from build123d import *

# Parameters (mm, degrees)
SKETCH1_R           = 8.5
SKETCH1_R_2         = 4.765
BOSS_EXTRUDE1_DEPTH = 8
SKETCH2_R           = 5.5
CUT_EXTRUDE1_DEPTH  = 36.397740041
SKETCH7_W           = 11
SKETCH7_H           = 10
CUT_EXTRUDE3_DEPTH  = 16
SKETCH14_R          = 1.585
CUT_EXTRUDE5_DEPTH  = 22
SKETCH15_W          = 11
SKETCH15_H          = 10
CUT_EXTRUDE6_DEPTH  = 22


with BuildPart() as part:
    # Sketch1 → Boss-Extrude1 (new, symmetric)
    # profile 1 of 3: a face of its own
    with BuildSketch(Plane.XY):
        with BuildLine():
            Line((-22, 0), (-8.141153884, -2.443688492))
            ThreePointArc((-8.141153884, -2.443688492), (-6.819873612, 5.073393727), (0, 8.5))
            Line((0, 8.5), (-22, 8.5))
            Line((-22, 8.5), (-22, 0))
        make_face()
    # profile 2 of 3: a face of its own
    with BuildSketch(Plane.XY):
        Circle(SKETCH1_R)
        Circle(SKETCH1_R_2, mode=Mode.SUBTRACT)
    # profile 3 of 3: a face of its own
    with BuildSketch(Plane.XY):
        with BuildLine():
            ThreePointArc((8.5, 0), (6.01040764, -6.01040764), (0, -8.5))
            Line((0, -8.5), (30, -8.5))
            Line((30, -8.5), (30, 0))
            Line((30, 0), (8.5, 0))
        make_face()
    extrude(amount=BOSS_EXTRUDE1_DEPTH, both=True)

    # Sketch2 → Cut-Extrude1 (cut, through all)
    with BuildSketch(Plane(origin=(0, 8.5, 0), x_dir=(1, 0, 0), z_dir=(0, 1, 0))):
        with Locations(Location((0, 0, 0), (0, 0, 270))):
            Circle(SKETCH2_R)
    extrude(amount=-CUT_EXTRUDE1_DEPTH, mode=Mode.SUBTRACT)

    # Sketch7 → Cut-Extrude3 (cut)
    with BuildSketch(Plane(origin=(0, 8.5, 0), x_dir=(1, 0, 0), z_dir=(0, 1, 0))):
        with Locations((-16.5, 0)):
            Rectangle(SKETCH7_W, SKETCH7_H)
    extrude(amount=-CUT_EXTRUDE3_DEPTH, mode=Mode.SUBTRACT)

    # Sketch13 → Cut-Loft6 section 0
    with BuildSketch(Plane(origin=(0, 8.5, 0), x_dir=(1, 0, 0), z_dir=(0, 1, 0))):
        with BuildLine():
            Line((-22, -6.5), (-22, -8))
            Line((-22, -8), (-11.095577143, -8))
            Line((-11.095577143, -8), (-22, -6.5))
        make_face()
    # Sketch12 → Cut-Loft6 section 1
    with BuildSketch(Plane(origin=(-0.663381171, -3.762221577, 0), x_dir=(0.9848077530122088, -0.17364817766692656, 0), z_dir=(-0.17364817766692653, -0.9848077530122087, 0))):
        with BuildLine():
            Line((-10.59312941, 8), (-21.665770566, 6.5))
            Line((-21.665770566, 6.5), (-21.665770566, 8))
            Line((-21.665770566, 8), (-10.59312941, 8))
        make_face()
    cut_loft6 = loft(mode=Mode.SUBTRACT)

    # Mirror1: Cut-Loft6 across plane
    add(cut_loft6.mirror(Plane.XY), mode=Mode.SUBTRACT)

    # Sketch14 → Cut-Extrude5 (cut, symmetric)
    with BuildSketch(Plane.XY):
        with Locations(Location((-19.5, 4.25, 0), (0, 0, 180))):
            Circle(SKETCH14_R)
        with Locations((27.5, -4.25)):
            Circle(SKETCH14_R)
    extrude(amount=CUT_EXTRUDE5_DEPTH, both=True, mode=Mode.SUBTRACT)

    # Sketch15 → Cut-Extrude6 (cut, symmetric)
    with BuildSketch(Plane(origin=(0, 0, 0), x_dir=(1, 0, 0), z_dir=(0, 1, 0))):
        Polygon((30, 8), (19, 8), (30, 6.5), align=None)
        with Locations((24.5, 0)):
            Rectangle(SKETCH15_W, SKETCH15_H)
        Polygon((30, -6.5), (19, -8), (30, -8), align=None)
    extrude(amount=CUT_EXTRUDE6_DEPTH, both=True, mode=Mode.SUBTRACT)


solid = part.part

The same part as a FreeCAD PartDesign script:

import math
import FreeCAD as App
import Part
import Sketcher
from FreeCAD import Vector
Q = App.Units.Quantity

doc = App.newDocument("Part")
body = doc.addObject("PartDesign::Body", "Body")

# Sketch on XY plane
sketch1 = body.newObject("Sketcher::SketchObject", "Sketch")
sketch1.AttachmentSupport = (doc.getObject("XY_Plane"), [""])
sketch1.MapMode = "FlatFace"
sketch1.addGeometry(Part.LineSegment(Vector(-22, 0, 0), Vector(-8.1, -2.4, 0)), False)
sketch1.addGeometry(Part.ArcOfCircle(Part.Circle(Vector(0, 0, 0), Vector(0, 0, 1), 8.5), math.radians(-163), math.radians(-90)), False)
sketch1.addGeometry(Part.LineSegment(Vector(0, -8.5, 0), Vector(30, -8.5, 0)), False)
sketch1.addGeometry(Part.LineSegment(Vector(30, -8.5, 0), Vector(30, 0, 0)), False)
sketch1.addGeometry(Part.LineSegment(Vector(30, 0, 0), Vector(8.5, 0, 0)), False)
sketch1.addGeometry(Part.ArcOfCircle(Part.Circle(Vector(0, 0, 0), Vector(0, 0, 1), 8.5), math.radians(0), math.radians(90)), False)
sketch1.addGeometry(Part.LineSegment(Vector(0, 8.5, 0), Vector(-22, 8.5, 0)), False)
sketch1.addGeometry(Part.LineSegment(Vector(-22, 8.5, 0), Vector(-22, 0, 0)), False)
sketch1.addGeometry(Part.Circle(Vector(0, 0, 0), Vector(0, 0, 1), 4.8), False)
sketch1.addConstraint(Sketcher.Constraint("Coincident", 0, 2, 1, 1))
sketch1.addConstraint(Sketcher.Constraint("Tangent", 1, 2, 2, 1))
sketch1.addConstraint(Sketcher.Constraint("Coincident", 2, 2, 3, 1))
sketch1.addConstraint(Sketcher.Constraint("Coincident", 3, 2, 4, 1))
sketch1.addConstraint(Sketcher.Constraint("Coincident", 4, 2, 5, 1))
sketch1.addConstraint(Sketcher.Constraint("Tangent", 5, 2, 6, 1))
sketch1.addConstraint(Sketcher.Constraint("Coincident", 6, 2, 7, 1))
sketch1.addConstraint(Sketcher.Constraint("Coincident", 7, 2, 0, 1))
sketch1.addConstraint(Sketcher.Constraint("Horizontal", 2))
sketch1.addConstraint(Sketcher.Constraint("Vertical", 3))
sketch1.addConstraint(Sketcher.Constraint("Horizontal", 4))
sketch1.addConstraint(Sketcher.Constraint("Horizontal", 6))
sketch1.addConstraint(Sketcher.Constraint("Vertical", 7))
sketch1.addConstraint(Sketcher.Constraint("Coincident", 1, 3, -1, 1))
sketch1.addConstraint(Sketcher.Constraint("Coincident", 5, 3, -1, 1))
sketch1.addConstraint(Sketcher.Constraint("Coincident", 8, 3, -1, 1))
sketch1.addConstraint(Sketcher.Constraint("Equal", 1, 5))
sketch1.addConstraint(Sketcher.Constraint("PointOnObject", 3, 2, -1))
sketch1.addConstraint(Sketcher.Constraint("PointOnObject", 7, 2, -1))
sketch1.addConstraint(Sketcher.Constraint("Radius", 1, Q("8.5 mm")))
sketch1.addConstraint(Sketcher.Constraint("Diameter", 8, Q("9.53 mm")))
sketch1.addConstraint(Sketcher.Constraint("DistanceX", 2, 1, 2, 2, Q("30 mm")))
sketch1.addConstraint(Sketcher.Constraint("DistanceX", 6, 2, 6, 1, Q("22 mm")))
sketch1.addConstraint(Sketcher.Constraint("Angle", 0, Q("-10 deg")))
pad1 = body.newObject("PartDesign::Pad", "Pad")
pad1.Profile = sketch1
pad1.Length = 16
pad1.Midplane = True

# Sketch on XZ plane
sketch2 = body.newObject("Sketcher::SketchObject", "Sketch001")
sketch2.AttachmentSupport = (doc.getObject("XZ_Plane"), [""])
sketch2.MapMode = "FlatFace"
sketch2.AttachmentOffset = App.Placement(Vector(0, 0, -8.5), App.Rotation())
sketch2.addGeometry(Part.Circle(Vector(0, 0, 0), Vector(0, 0, 1), 6), False)
sketch2.addConstraint(Sketcher.Constraint("Coincident", 0, 3, -1, 1))
sketch2.addConstraint(Sketcher.Constraint("Diameter", 0, Q("11 mm")))
pocket1 = body.newObject("PartDesign::Pocket", "Pocket")
pocket1.Profile = sketch2
pocket1.Type = "ThroughAll"
pocket1.Reversed = True

# Sketch on XZ plane
sketch3 = body.newObject("Sketcher::SketchObject", "Sketch002")
sketch3.AttachmentSupport = (doc.getObject("XZ_Plane"), [""])
sketch3.MapMode = "FlatFace"
sketch3.AttachmentOffset = App.Placement(Vector(0, 0, -8.5), App.Rotation())
sketch3.addGeometry(Part.LineSegment(Vector(-22, -5, 0), Vector(-22, 5, 0)), False)
sketch3.addGeometry(Part.LineSegment(Vector(-22, 5, 0), Vector(-11, 5, 0)), False)
sketch3.addGeometry(Part.LineSegment(Vector(-11, 5, 0), Vector(-11, -5, 0)), False)
sketch3.addGeometry(Part.LineSegment(Vector(-11, -5, 0), Vector(-22, -5, 0)), False)
sketch3.addConstraint(Sketcher.Constraint("Coincident", 0, 2, 1, 1))
sketch3.addConstraint(Sketcher.Constraint("Coincident", 1, 2, 2, 1))
sketch3.addConstraint(Sketcher.Constraint("Coincident", 2, 2, 3, 1))
sketch3.addConstraint(Sketcher.Constraint("Coincident", 3, 2, 0, 1))
sketch3.addConstraint(Sketcher.Constraint("Vertical", 0))
sketch3.addConstraint(Sketcher.Constraint("Horizontal", 1))
sketch3.addConstraint(Sketcher.Constraint("Vertical", 2))
sketch3.addConstraint(Sketcher.Constraint("Horizontal", 3))
sketch3.addConstraint(Sketcher.Constraint("DistanceX", 1, 1, 1, 2, Q("11 mm")))
sketch3.addConstraint(Sketcher.Constraint("DistanceY", 0, 1, 0, 2, Q("10 mm")))
sketch3.addConstraint(Sketcher.Constraint("DistanceX", 0, 2, -1, 1, Q("22 mm")))
sketch3.addConstraint(Sketcher.Constraint("DistanceY", -1, 1, 0, 2, Q("5 mm")))
pocket2 = body.newObject("PartDesign::Pocket", "Pocket001")
pocket2.Profile = sketch3
pocket2.Length = 16
pocket2.Reversed = True

# Sketch on XZ plane
sketch4 = body.newObject("Sketcher::SketchObject", "Sketch003")
sketch4.AttachmentSupport = (doc.getObject("XZ_Plane"), [""])
sketch4.MapMode = "FlatFace"
sketch4.AttachmentOffset = App.Placement(Vector(0, 0, -8.5), App.Rotation())
sketch4.addGeometry(Part.LineSegment(Vector(-22, 6.5, 0), Vector(-22, 8, 0)), False)
sketch4.addGeometry(Part.LineSegment(Vector(-22, 8, 0), Vector(-11.1, 8, 0)), False)
sketch4.addGeometry(Part.LineSegment(Vector(-11.1, 8, 0), Vector(-22, 6.5, 0)), False)
sketch4.addConstraint(Sketcher.Constraint("Coincident", 0, 2, 1, 1))
sketch4.addConstraint(Sketcher.Constraint("Coincident", 1, 2, 2, 1))
sketch4.addConstraint(Sketcher.Constraint("Coincident", 2, 2, 0, 1))
sketch4.addConstraint(Sketcher.Constraint("Vertical", 0))
sketch4.addConstraint(Sketcher.Constraint("Horizontal", 1))
sketch4.addConstraint(Sketcher.Constraint("DistanceY", 0, 1, 0, 2, Q("1.5 mm")))
sketch4.addConstraint(Sketcher.Constraint("DistanceX", 0, 2, -1, 1, Q("22 mm")))
sketch4.addConstraint(Sketcher.Constraint("DistanceY", -1, 1, 0, 2, Q("8 mm")))
sketch4.addConstraint(Sketcher.Constraint("Distance", 2, Q("11.007109 mm")))

# Sketch on an angled plane
sketch5 = body.newObject("Sketcher::SketchObject", "Sketch004")
sketch5.Placement = App.Placement(Vector(-0.663381, -3.762222, 0), App.Rotation(Vector(0.984807753, -0.173648178, 0), Vector(0, 0, 1), Vector(-0.173648178, -0.984807753, 0), "ZXY"))
sketch5.addGeometry(Part.LineSegment(Vector(-21.7, 6.5, 0), Vector(-10.6, 8, 0)), False)
sketch5.addGeometry(Part.LineSegment(Vector(-10.6, 8, 0), Vector(-21.7, 8, 0)), False)
sketch5.addGeometry(Part.LineSegment(Vector(-21.7, 8, 0), Vector(-21.7, 6.5, 0)), False)
sketch5.addConstraint(Sketcher.Constraint("Coincident", 0, 2, 1, 1))
sketch5.addConstraint(Sketcher.Constraint("Coincident", 1, 2, 2, 1))
sketch5.addConstraint(Sketcher.Constraint("Coincident", 2, 2, 0, 1))
sketch5.addConstraint(Sketcher.Constraint("Horizontal", 1))
sketch5.addConstraint(Sketcher.Constraint("Vertical", 2))
sketch5.addConstraint(Sketcher.Constraint("DistanceY", 2, 2, 2, 1, Q("1.5 mm")))
sketch5.addConstraint(Sketcher.Constraint("DistanceY", -1, 1, 0, 2, Q("8 mm")))
sketch5.addConstraint(Sketcher.Constraint("DistanceX", 1, 2, 1, 1, Q("11.072641 mm")))
sketch5.addConstraint(Sketcher.Constraint("DistanceX", 0, 2, -1, 1, Q("10.593129 mm")))

subtractiveloft = body.newObject("PartDesign::SubtractiveLoft", "SubtractiveLoft")
subtractiveloft.Profile = sketch4
subtractiveloft.Sections = [sketch5]
doc.recompute()

mirrored = body.newObject("PartDesign::Mirrored", "Mirrored")
mirrored.Originals = [subtractiveloft]
mirrored.MirrorPlane = (doc.getObject("XY_Plane"), [""])
body.Tip = mirrored

# Sketch on XY plane
sketch6 = body.newObject("Sketcher::SketchObject", "Sketch005")
sketch6.AttachmentSupport = (doc.getObject("XY_Plane"), [""])
sketch6.MapMode = "FlatFace"
sketch6.addGeometry(Part.Circle(Vector(-19.5, 4.2, 0), Vector(0, 0, 1), 1.6), False)
sketch6.addGeometry(Part.Circle(Vector(27.5, -4.2, 0), Vector(0, 0, 1), 1.6), False)
sketch6.addConstraint(Sketcher.Constraint("Equal", 0, 1))
sketch6.addConstraint(Sketcher.Constraint("Diameter", 0, Q("3.17 mm")))
sketch6.addConstraint(Sketcher.Constraint("DistanceX", 0, 3, 1, 3, Q("47 mm")))
sketch6.addConstraint(Sketcher.Constraint("DistanceX", 0, 3, -1, 1, Q("19.5 mm")))
sketch6.addConstraint(Sketcher.Constraint("DistanceY", 1, 3, 0, 3, Q("8.5 mm")))
sketch6.addConstraint(Sketcher.Constraint("DistanceY", -1, 1, 0, 3, Q("4.25 mm")))
pocket3 = body.newObject("PartDesign::Pocket", "Pocket002")
pocket3.Profile = sketch6
pocket3.Length = 44
pocket3.Midplane = True

# Sketch on XZ plane
sketch7 = body.newObject("Sketcher::SketchObject", "Sketch006")
sketch7.AttachmentSupport = (doc.getObject("XZ_Plane"), [""])
sketch7.MapMode = "FlatFace"
sketch7.addGeometry(Part.LineSegment(Vector(30, -8, 0), Vector(19, -8, 0)), False)
sketch7.addGeometry(Part.LineSegment(Vector(19, -8, 0), Vector(30, -6.5, 0)), False)
sketch7.addGeometry(Part.LineSegment(Vector(30, -6.5, 0), Vector(30, -8, 0)), False)
sketch7.addGeometry(Part.LineSegment(Vector(19, -5, 0), Vector(19, 5, 0)), False)
sketch7.addGeometry(Part.LineSegment(Vector(19, 5, 0), Vector(30, 5, 0)), False)
sketch7.addGeometry(Part.LineSegment(Vector(30, 5, 0), Vector(30, -5, 0)), False)
sketch7.addGeometry(Part.LineSegment(Vector(30, -5, 0), Vector(19, -5, 0)), False)
sketch7.addGeometry(Part.LineSegment(Vector(30, 6.5, 0), Vector(19, 8, 0)), False)
sketch7.addGeometry(Part.LineSegment(Vector(19, 8, 0), Vector(30, 8, 0)), False)
sketch7.addGeometry(Part.LineSegment(Vector(30, 8, 0), Vector(30, 6.5, 0)), False)
sketch7.addConstraint(Sketcher.Constraint("Coincident", 0, 2, 1, 1))
sketch7.addConstraint(Sketcher.Constraint("Coincident", 1, 2, 2, 1))
sketch7.addConstraint(Sketcher.Constraint("Coincident", 2, 2, 0, 1))
sketch7.addConstraint(Sketcher.Constraint("Coincident", 3, 2, 4, 1))
sketch7.addConstraint(Sketcher.Constraint("Coincident", 4, 2, 5, 1))
sketch7.addConstraint(Sketcher.Constraint("Coincident", 5, 2, 6, 1))
sketch7.addConstraint(Sketcher.Constraint("Coincident", 6, 2, 3, 1))
sketch7.addConstraint(Sketcher.Constraint("Coincident", 7, 2, 8, 1))
sketch7.addConstraint(Sketcher.Constraint("Coincident", 8, 2, 9, 1))
sketch7.addConstraint(Sketcher.Constraint("Coincident", 9, 2, 7, 1))
sketch7.addConstraint(Sketcher.Constraint("Horizontal", 0))
sketch7.addConstraint(Sketcher.Constraint("Vertical", 2))
sketch7.addConstraint(Sketcher.Constraint("Vertical", 3))
sketch7.addConstraint(Sketcher.Constraint("Horizontal", 4))
sketch7.addConstraint(Sketcher.Constraint("Vertical", 5))
sketch7.addConstraint(Sketcher.Constraint("Horizontal", 6))
sketch7.addConstraint(Sketcher.Constraint("Horizontal", 8))
sketch7.addConstraint(Sketcher.Constraint("Vertical", 9))
sketch7.addConstraint(Sketcher.Constraint("Symmetric", 0, 2, 7, 2, -1))
sketch7.addConstraint(Sketcher.Constraint("Symmetric", 1, 2, 9, 2, -1))
sketch7.addConstraint(Sketcher.Constraint("Vertical", 0, 2, 3, 2))
sketch7.addConstraint(Sketcher.Constraint("Vertical", 2, 2, 4, 2))
sketch7.addConstraint(Sketcher.Constraint("DistanceX", 0, 2, 0, 1, Q("11 mm")))
sketch7.addConstraint(Sketcher.Constraint("DistanceY", 3, 1, 3, 2, Q("10 mm")))
sketch7.addConstraint(Sketcher.Constraint("DistanceY", 2, 2, 2, 1, Q("1.5 mm")))
sketch7.addConstraint(Sketcher.Constraint("DistanceX", -1, 1, 0, 2, Q("19 mm")))
sketch7.addConstraint(Sketcher.Constraint("DistanceY", 0, 2, -1, 1, Q("8 mm")))
sketch7.addConstraint(Sketcher.Constraint("DistanceY", -1, 1, 3, 2, Q("5 mm")))
pocket4 = body.newObject("PartDesign::Pocket", "Pocket003")
pocket4.Profile = sketch7
pocket4.Length = 44
pocket4.Midplane = True

doc.recompute()
